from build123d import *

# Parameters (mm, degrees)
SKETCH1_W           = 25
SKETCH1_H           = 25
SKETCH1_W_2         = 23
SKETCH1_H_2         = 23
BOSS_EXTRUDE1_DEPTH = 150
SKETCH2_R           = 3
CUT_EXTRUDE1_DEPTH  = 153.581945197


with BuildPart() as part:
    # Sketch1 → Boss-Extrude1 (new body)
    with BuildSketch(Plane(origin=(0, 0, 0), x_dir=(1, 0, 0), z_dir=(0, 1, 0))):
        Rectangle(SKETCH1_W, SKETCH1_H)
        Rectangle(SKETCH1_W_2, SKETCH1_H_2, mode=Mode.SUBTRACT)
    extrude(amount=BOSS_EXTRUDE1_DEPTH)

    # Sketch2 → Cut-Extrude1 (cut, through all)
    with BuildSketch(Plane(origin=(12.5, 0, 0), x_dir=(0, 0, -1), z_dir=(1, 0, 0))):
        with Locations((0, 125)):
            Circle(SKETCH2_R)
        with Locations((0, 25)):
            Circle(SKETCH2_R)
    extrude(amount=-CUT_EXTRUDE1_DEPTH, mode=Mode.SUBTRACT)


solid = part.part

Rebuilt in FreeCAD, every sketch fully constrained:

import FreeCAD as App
import Part
import Sketcher
from FreeCAD import Vector
Q = App.Units.Quantity


def add_polygon(sketch, points):
    """Adds a closed chain of lines whose ends are joined by coincident constraints."""
    first, n = sketch.GeometryCount, len(points)
    for a, b in zip(points, points[1:] + points[:1]):
        sketch.addGeometry(Part.LineSegment(App.Vector(*a, 0), App.Vector(*b, 0)), False)
    for i in range(n):
        sketch.addConstraint(Sketcher.Constraint("Coincident", first + i, 2, first + (i + 1) % n, 1))

doc = App.newDocument("Part")
params = doc.addObject("Spreadsheet::Sheet", "Params")
for row, (alias, value) in enumerate([
    ("sketch1_width", "25 mm"),
    ("sketch1_width2", "23 mm"),
    ("pad1_length", "150 mm"),
    ("sketch2_diameter", "6 mm"),
], start=1):
    params.set(f"A{row}", alias)
    params.set(f"B{row}", "=" + value)
    params.setAlias(f"B{row}", alias)

body = doc.addObject("PartDesign::Body", "Body")

# Sketch on XZ plane
sketch1 = doc.addObject("Sketcher::SketchObject", "Sketch")
body.addObject(sketch1)
sketch1.AttachmentSupport = (doc.XZ_Plane, [""])
sketch1.MapMode = "FlatFace"
add_polygon(sketch1, [(-12.5, -12.5), (-12.5, 12.5), (12.5, 12.5), (12.5, -12.5)])  # lines 0-3
add_polygon(sketch1, [(11.5, 11.5), (-11.5, 11.5), (-11.5, -11.5), (11.5, -11.5)])  # lines 4-7
sketch1.addConstraint([
    Sketcher.Constraint("Vertical", 0),
    Sketcher.Constraint("Horizontal", 1),
    Sketcher.Constraint("Vertical", 2),
    Sketcher.Constraint("Horizontal", 3),
    Sketcher.Constraint("Horizontal", 4),
    Sketcher.Constraint("Vertical", 5),
    Sketcher.Constraint("Horizontal", 6),
    Sketcher.Constraint("Vertical", 7),
    Sketcher.Constraint("Symmetric", 0, 2, 2, 2, -1, 1),
    Sketcher.Constraint("Symmetric", 4, 2, 6, 2, -1, 1),
    Sketcher.Constraint("Equal", 3, 0),
    Sketcher.Constraint("Equal", 6, 5),
    Sketcher.Constraint("DistanceX", 1, 1, 1, 2, Q("25 mm")),
    Sketcher.Constraint("DistanceX", 4, 2, 4, 1, Q("23 mm")),
])
sketch1.setExpression("Constraints[20]", "Params.sketch1_width")
sketch1.setExpression("Constraints[21]", "Params.sketch1_width2")
pad1 = doc.addObject("PartDesign::Pad", "Pad")
body.addObject(pad1)
pad1.Profile = sketch1
pad1.setExpression("Length", "Params.pad1_length")
pad1.Reversed = True

# Sketch on YZ plane
sketch2 = doc.addObject("Sketcher::SketchObject", "Sketch001")
body.addObject(sketch2)
sketch2.AttachmentSupport = (doc.YZ_Plane, [""])
sketch2.MapMode = "FlatFace"
sketch2.AttachmentOffset = App.Placement(Vector(0, 0, 12.5), App.Rotation())
sketch2.addGeometry([
    Part.Circle(Vector(125, 0, 0), Vector(0, 0, 1), 3),
    Part.Circle(Vector(25, 0, 0), Vector(0, 0, 1), 3),
], False)
sketch2.addConstraint([
    Sketcher.Constraint("Equal", 0, 1),
    Sketcher.Constraint("PointOnObject", 0, 3, -1),
    Sketcher.Constraint("PointOnObject", 1, 3, -1),
    Sketcher.Constraint("Diameter", 0, Q("6 mm")),
    Sketcher.Constraint("DistanceX", -1, 1, 0, 3, Q("125 mm")),
    Sketcher.Constraint("DistanceX", -1, 1, 1, 3, Q("25 mm")),
])
sketch2.setExpression("Constraints[3]", "Params.sketch2_diameter")
pocket1 = doc.addObject("PartDesign::Pocket", "Pocket")
body.addObject(pocket1)
pocket1.Profile = sketch2
pocket1.Type = "ThroughAll"

doc.recompute()
